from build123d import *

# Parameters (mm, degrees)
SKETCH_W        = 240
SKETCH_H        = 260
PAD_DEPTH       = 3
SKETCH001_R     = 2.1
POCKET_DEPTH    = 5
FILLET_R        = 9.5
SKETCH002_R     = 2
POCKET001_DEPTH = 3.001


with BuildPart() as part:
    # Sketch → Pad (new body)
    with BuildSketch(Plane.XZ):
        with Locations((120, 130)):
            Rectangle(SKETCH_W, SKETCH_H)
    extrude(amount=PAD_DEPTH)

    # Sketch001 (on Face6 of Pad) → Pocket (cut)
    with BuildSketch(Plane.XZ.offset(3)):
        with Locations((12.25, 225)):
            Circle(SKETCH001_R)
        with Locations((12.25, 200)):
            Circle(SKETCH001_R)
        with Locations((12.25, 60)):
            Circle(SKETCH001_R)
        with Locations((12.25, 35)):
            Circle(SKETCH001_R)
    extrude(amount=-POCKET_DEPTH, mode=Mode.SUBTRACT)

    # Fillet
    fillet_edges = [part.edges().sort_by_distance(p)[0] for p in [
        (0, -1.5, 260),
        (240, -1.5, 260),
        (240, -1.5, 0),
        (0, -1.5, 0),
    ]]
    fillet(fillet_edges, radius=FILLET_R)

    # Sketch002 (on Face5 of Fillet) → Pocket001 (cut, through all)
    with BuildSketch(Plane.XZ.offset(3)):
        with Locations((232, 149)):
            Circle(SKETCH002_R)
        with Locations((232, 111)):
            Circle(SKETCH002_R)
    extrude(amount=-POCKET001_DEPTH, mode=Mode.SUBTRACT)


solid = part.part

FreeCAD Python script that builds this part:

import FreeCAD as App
import Part
import Sketcher
Q = App.Units.Quantity


def edges_at(feature, points):
    """Names of the edges that pass closest to the given points."""
    edges = feature.Shape.Edges
    near = lambda p: min(range(len(edges)), key=lambda i: edges[i].distToShape(Part.Vertex(*p))[0])
    return sorted({f"Edge{near(p) + 1}" for p in points})

doc = App.newDocument("Part")
params = doc.addObject("Spreadsheet::Sheet", "Params")
for row, (alias, value) in enumerate([
    ("sketch1_width", "240 mm"),
    ("sketch1_height", "260 mm"),
    ("pad1_length", "3 mm"),
    ("sketch2_diameter", "4.2 mm"),
    ("pocket1_length", "5 mm"),
    ("fillet_radius", "9.5 mm"),
    ("sketch3_diameter", "4 mm"),
], start=1):
    params.set(f"A{row}", alias)
    params.set(f"B{row}", "=" + value)
    params.setAlias(f"B{row}", alias)

body = doc.addObject("PartDesign::Body", "Body")

# Sketch on XZ plane
sketch1 = body.newObject("Sketcher::SketchObject", "Sketch")
sketch1.AttachmentSupport = (doc.getObject("XZ_Plane"), [""])
sketch1.MapMode = "FlatFace"
sketch1.addGeometry([
    Part.LineSegment(App.Vector(0, 260, 0), App.Vector(0, 0, 0)),
    Part.LineSegment(App.Vector(0, 0, 0), App.Vector(240, 0, 0)),
    Part.LineSegment(App.Vector(240, 0, 0), App.Vector(240, 260, 0)),
    Part.LineSegment(App.Vector(240, 260, 0), App.Vector(0, 260, 0)),
], False)
sketch1.addConstraint([
    Sketcher.Constraint("Coincident", 0, 2, 1, 1),
    Sketcher.Constraint("Coincident", 1, 2, 2, 1),
    Sketcher.Constraint("Coincident", 2, 2, 3, 1),
    Sketcher.Constraint("Coincident", 3, 2, 0, 1),
    Sketcher.Constraint("Vertical", 0),
    Sketcher.Constraint("Horizontal", 1),
    Sketcher.Constraint("Vertical", 2),
    Sketcher.Constraint("Horizontal", 3),
    Sketcher.Constraint("Coincident", 0, 2, -1, 1),
    Sketcher.Constraint("DistanceX", 1, 1, 1, 2, Q("240 mm")),
    Sketcher.Constraint("DistanceY", 0, 2, 0, 1, Q("260 mm")),
])
sketch1.setExpression("Constraints[9]", "Params.sketch1_width")
sketch1.setExpression("Constraints[10]", "Params.sketch1_height")
pad1 = body.newObject("PartDesign::Pad", "Pad")
pad1.Profile = sketch1
pad1.setExpression("Length", "Params.pad1_length")

# Sketch on XZ plane
sketch2 = body.newObject("Sketcher::SketchObject", "Sketch001")
sketch2.AttachmentSupport = (doc.getObject("XZ_Plane"), [""])
sketch2.MapMode = "FlatFace"
sketch2.AttachmentOffset = App.Placement(App.Vector(0, 0, 3), App.Rotation())
sketch2.addGeometry([
    Part.Circle(App.Vector(12.2, 225, 0), App.Vector(0, 0, 1), 2.1),
    Part.Circle(App.Vector(12.2, 200, 0), App.Vector(0, 0, 1), 2.1),
    Part.Circle(App.Vector(12.2, 60, 0), App.Vector(0, 0, 1), 2.1),
    Part.Circle(App.Vector(12.2, 35, 0), App.Vector(0, 0, 1), 2.1),
], False)
sketch2.addConstraint([
    Sketcher.Constraint("Equal", 0, 1),
    Sketcher.Constraint("Equal", 1, 2),
    Sketcher.Constraint("Equal", 2, 3),
    Sketcher.Constraint("Vertical", 0, 3, 1, 3),
    Sketcher.Constraint("Vertical", 1, 3, 2, 3),
    Sketcher.Constraint("Vertical", 2, 3, 3, 3),
    Sketcher.Constraint("Diameter", 0, Q("4.2 mm")),
    Sketcher.Constraint("DistanceY", -1, 1, 0, 3, Q("225 mm")),
    Sketcher.Constraint("DistanceY", -1, 1, 1, 3, Q("200 mm")),
    Sketcher.Constraint("DistanceY", -1, 1, 2, 3, Q("60 mm")),
    Sketcher.Constraint("DistanceY", -1, 1, 3, 3, Q("35 mm")),
    Sketcher.Constraint("DistanceX", -1, 1, 0, 3, Q("12.25 mm")),
])
sketch2.setExpression("Constraints[6]", "Params.sketch2_diameter")
pocket1 = body.newObject("PartDesign::Pocket", "Pocket")
pocket1.Profile = sketch2
pocket1.setExpression("Length", "Params.pocket1_length")
doc.recompute()

fillet = body.newObject("PartDesign::Fillet", "Fillet")
fillet.Base = (pocket1, edges_at(pocket1, [
    (0, -1.5, 260),
    (240, -1.5, 260),
    (240, -1.5, 0),
    (0, -1.5, 0),
]))
fillet.setExpression("Radius", "Params.fillet_radius")

# Sketch on XZ plane
sketch3 = body.newObject("Sketcher::SketchObject", "Sketch002")
sketch3.AttachmentSupport = (doc.getObject("XZ_Plane"), [""])
sketch3.MapMode = "FlatFace"
sketch3.AttachmentOffset = App.Placement(App.Vector(0, 0, 3), App.Rotation())
sketch3.addGeometry([
    Part.Circle(App.Vector(232, 149, 0), App.Vector(0, 0, 1), 2),
    Part.Circle(App.Vector(232, 111, 0), App.Vector(0, 0, 1), 2),
], False)
sketch3.addConstraint([
    Sketcher.Constraint("Equal", 0, 1),
    Sketcher.Constraint("Vertical", 0, 3, 1, 3),
    Sketcher.Constraint("Diameter", 0, Q("4 mm")),
    Sketcher.Constraint("DistanceX", -1, 1, 0, 3, Q("232 mm")),
    Sketcher.Constraint("DistanceY", -1, 1, 0, 3, Q("149 mm")),
    Sketcher.Constraint("DistanceY", -1, 1, 1, 3, Q("111 mm")),
])
sketch3.setExpression("Constraints[2]", "Params.sketch3_diameter")
pocket2 = body.newObject("PartDesign::Pocket", "Pocket001")
pocket2.Profile = sketch3
pocket2.Type = "ThroughAll"

doc.recompute()
